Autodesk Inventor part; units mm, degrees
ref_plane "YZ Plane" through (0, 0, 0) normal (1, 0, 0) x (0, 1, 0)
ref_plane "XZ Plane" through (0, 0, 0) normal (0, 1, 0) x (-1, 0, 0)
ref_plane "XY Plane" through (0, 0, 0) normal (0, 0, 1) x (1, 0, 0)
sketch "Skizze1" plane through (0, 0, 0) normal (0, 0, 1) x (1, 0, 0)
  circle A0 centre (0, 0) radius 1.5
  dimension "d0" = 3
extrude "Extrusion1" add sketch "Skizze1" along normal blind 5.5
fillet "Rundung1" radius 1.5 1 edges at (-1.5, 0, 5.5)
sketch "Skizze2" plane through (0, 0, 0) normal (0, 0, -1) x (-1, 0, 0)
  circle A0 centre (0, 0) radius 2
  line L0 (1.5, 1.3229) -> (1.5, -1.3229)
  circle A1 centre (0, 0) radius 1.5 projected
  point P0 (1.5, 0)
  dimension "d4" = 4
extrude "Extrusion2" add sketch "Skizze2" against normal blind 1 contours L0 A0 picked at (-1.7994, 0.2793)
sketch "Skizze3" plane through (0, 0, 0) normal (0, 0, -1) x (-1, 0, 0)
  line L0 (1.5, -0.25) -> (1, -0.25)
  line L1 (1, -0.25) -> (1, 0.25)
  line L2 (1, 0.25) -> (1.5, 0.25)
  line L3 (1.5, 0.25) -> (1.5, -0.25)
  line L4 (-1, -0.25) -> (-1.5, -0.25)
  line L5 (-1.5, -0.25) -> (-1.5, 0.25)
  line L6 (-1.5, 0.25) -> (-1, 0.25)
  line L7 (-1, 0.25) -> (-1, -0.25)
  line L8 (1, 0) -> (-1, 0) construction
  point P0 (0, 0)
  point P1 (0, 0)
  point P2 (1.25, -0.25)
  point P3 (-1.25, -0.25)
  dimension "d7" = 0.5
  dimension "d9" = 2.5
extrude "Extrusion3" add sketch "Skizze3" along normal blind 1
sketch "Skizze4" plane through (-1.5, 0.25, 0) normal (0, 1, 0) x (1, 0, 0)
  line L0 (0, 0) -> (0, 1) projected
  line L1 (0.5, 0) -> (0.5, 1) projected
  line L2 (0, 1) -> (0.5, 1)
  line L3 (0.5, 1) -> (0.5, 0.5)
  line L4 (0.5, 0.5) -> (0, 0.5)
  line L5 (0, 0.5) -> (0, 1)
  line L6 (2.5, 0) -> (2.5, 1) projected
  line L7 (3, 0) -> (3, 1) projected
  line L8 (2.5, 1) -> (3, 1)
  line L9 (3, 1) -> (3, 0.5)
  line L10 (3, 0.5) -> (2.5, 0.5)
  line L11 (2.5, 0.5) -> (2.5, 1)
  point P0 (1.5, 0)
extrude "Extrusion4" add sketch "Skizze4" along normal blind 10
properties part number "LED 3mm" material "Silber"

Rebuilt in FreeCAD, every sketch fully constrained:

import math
import FreeCAD as App
import Part
import Sketcher
Q = App.Units.Quantity


def edges_at(feature, points):
    """Names of the edges that pass closest to the given points."""
    edges = feature.Shape.Edges
    near = lambda p: min(range(len(edges)), key=lambda i: edges[i].distToShape(Part.Vertex(*p))[0])
    return sorted({f"Edge{near(p) + 1}" for p in points})

doc = App.newDocument("Part")
body = doc.addObject("PartDesign::Body", "Body")

# Sketch on XY plane
sketch1 = body.newObject("Sketcher::SketchObject", "Sketch")
sketch1.AttachmentSupport = (doc.getObject("XY_Plane"), [""])
sketch1.MapMode = "FlatFace"
sketch1.addGeometry(Part.Circle(App.Vector(0, 0, 0), App.Vector(0, 0, 1), 1.5), False)
sketch1.addConstraint([
    Sketcher.Constraint("Coincident", 0, 3, -1, 1),
    Sketcher.Constraint("Diameter", 0, Q("3 mm")),
])
pad1 = body.newObject("PartDesign::Pad", "Pad")
pad1.Profile = sketch1
pad1.Length = 5.5
doc.recompute()

fillet = body.newObject("PartDesign::Fillet", "Fillet")
fillet.Base = (pad1, edges_at(pad1, [(-1.5, 0, 5.5)]))
fillet.Radius = 1.5

# Sketch on XY plane
sketch2 = body.newObject("Sketcher::SketchObject", "Sketch001")
sketch2.AttachmentSupport = (doc.getObject("XY_Plane"), [""])
sketch2.MapMode = "FlatFace"
sketch2.addGeometry([
    Part.LineSegment(App.Vector(-1.5, 0, 0), App.Vector(-1.5, 1.3, 0)),
    Part.ArcOfCircle(Part.Circle(App.Vector(0, 0, 0), App.Vector(0, 0, 1), 2), math.radians(-139), math.radians(139)),
    Part.LineSegment(App.Vector(-1.5, -1.3, 0), App.Vector(-1.5, 0, 0)),
    Part.Circle(App.Vector(0, 0, 0), App.Vector(0, 0, 1), 1.5),
], False)
sketch2.addConstraint([
    Sketcher.Constraint("Coincident", 0, 2, 1, 2),
    Sketcher.Constraint("Coincident", 1, 1, 2, 1),
    Sketcher.Constraint("Coincident", 2, 2, 0, 1),
    Sketcher.Constraint("Vertical", 0),
    Sketcher.Constraint("Vertical", 2),
    Sketcher.Constraint("Coincident", 1, 3, -1, 1),
    Sketcher.Constraint("Coincident", 3, 3, -1, 1),
    Sketcher.Constraint("PointOnObject", 2, 2, -1),
    Sketcher.Constraint("Radius", 1, Q("2 mm")),
    Sketcher.Constraint("Diameter", 3, Q("3 mm")),
    Sketcher.Constraint("DistanceX", 0, 2, -1, 1, Q("1.5 mm")),
])
pad2 = body.newObject("PartDesign::Pad", "Pad001")
pad2.Profile = sketch2
pad2.Length = 1

# Sketch on XY plane
sketch3 = body.newObject("Sketcher::SketchObject", "Sketch002")
sketch3.AttachmentSupport = (doc.getObject("XY_Plane"), [""])
sketch3.MapMode = "FlatFace"
sketch3.addGeometry([
    Part.LineSegment(App.Vector(-1, -0.2, 0), App.Vector(-1.5, -0.2, 0)),  # 0
    Part.LineSegment(App.Vector(-1.5, -0.2, 0), App.Vector(-1.5, 0.2, 0)),  # 1
    Part.LineSegment(App.Vector(-1.5, 0.2, 0), App.Vector(-1, 0.2, 0)),  # 2
    Part.LineSegment(App.Vector(-1, 0.2, 0), App.Vector(-1, -0.2, 0)),  # 3
    Part.LineSegment(App.Vector(1.5, -0.2, 0), App.Vector(1, -0.2, 0)),  # 4
    Part.LineSegment(App.Vector(1, -0.2, 0), App.Vector(1, 0.2, 0)),  # 5
    Part.LineSegment(App.Vector(1, 0.2, 0), App.Vector(1.5, 0.2, 0)),  # 6
    Part.LineSegment(App.Vector(1.5, 0.2, 0), App.Vector(1.5, -0.2, 0)),  # 7
], False)
sketch3.addConstraint([
    Sketcher.Constraint("Coincident", 0, 2, 1, 1),
    Sketcher.Constraint("Coincident", 1, 2, 2, 1),
    Sketcher.Constraint("Coincident", 2, 2, 3, 1),
    Sketcher.Constraint("Coincident", 3, 2, 0, 1),
    Sketcher.Constraint("Coincident", 4, 2, 5, 1),
    Sketcher.Constraint("Coincident", 5, 2, 6, 1),
    Sketcher.Constraint("Coincident", 6, 2, 7, 1),
    Sketcher.Constraint("Coincident", 7, 2, 4, 1),
    Sketcher.Constraint("Horizontal", 0),
    Sketcher.Constraint("Vertical", 1),
    Sketcher.Constraint("Horizontal", 2),
    Sketcher.Constraint("Vertical", 3),
    Sketcher.Constraint("Horizontal", 4),
    Sketcher.Constraint("Vertical", 5),
    Sketcher.Constraint("Horizontal", 6),
    Sketcher.Constraint("Vertical", 7),
    Sketcher.Constraint("Symmetric", 2, 2, 4, 2, -1, 1),
    Sketcher.Constraint("Symmetric", 0, 2, 6, 2, -1, 1),
    Sketcher.Constraint("Horizontal", 3, 2, 4, 2),
    Sketcher.Constraint("Equal", 6, 1),
    Sketcher.Constraint("DistanceX", 0, 2, 0, 1, Q("0.5 mm")),
    Sketcher.Constraint("DistanceX", 0, 2, 4, 2, Q("2.5 mm")),
])
pad3 = body.newObject("PartDesign::Pad", "Pad002")
pad3.Profile = sketch3
pad3.Length = 1
pad3.Reversed = True

# Sketch on XZ plane
sketch4 = body.newObject("Sketcher::SketchObject", "Sketch003")
sketch4.AttachmentSupport = (doc.getObject("XZ_Plane"), [""])
sketch4.MapMode = "FlatFace"
sketch4.AttachmentOffset = App.Placement(App.Vector(0, 0, -0.25), App.Rotation())
sketch4.addGeometry([
    Part.LineSegment(App.Vector(-1.5, -1, 0), App.Vector(-1.5, -0.5, 0)),  # 0
    Part.LineSegment(App.Vector(-1.5, -0.5, 0), App.Vector(-1, -0.5, 0)),  # 1
    Part.LineSegment(App.Vector(-1, -0.5, 0), App.Vector(-1, -1, 0)),  # 2
    Part.LineSegment(App.Vector(-1, -1, 0), App.Vector(-1.5, -1, 0)),  # 3
    Part.LineSegment(App.Vector(1, -1, 0), App.Vector(1, -0.5, 0)),  # 4
    Part.LineSegment(App.Vector(1, -0.5, 0), App.Vector(1.5, -0.5, 0)),  # 5
    Part.LineSegment(App.Vector(1.5, -0.5, 0), App.Vector(1.5, -1, 0)),  # 6
    Part.LineSegment(App.Vector(1.5, -1, 0), App.Vector(1, -1, 0)),  # 7
], False)
sketch4.addConstraint([
    Sketcher.Constraint("Coincident", 0, 2, 1, 1),
    Sketcher.Constraint("Coincident", 1, 2, 2, 1),
    Sketcher.Constraint("Coincident", 2, 2, 3, 1),
    Sketcher.Constraint("Coincident", 3, 2, 0, 1),
    Sketcher.Constraint("Coincident", 4, 2, 5, 1),
    Sketcher.Constraint("Coincident", 5, 2, 6, 1),
    Sketcher.Constraint("Coincident", 6, 2, 7, 1),
    Sketcher.Constraint("Coincident", 7, 2, 4, 1),
    Sketcher.Constraint("Vertical", 0),
    Sketcher.Constraint("Horizontal", 1),
    Sketcher.Constraint("Vertical", 2),
    Sketcher.Constraint("Horizontal", 3),
    Sketcher.Constraint("Vertical", 4),
    Sketcher.Constraint("Horizontal", 5),
    Sketcher.Constraint("Vertical", 6),
    Sketcher.Constraint("Horizontal", 7),
    Sketcher.Constraint("Symmetric", 1, 2, 4, 2, -2),
    Sketcher.Constraint("Symmetric", 3, 2, 6, 2, -2),
    Sketcher.Constraint("Equal", 7, 0),
    Sketcher.Constraint("DistanceX", 1, 1, 1, 2, Q("0.5 mm")),
    Sketcher.Constraint("DistanceX", 1, 2, -1, 1, Q("1 mm")),
    Sketcher.Constraint("DistanceY", 2, 2, -1, 1, Q("1 mm")),
])
pad4 = body.newObject("PartDesign::Pad", "Pad003")
pad4.Profile = sketch4
pad4.Length = 10
pad4.Reversed = True

doc.recompute()
